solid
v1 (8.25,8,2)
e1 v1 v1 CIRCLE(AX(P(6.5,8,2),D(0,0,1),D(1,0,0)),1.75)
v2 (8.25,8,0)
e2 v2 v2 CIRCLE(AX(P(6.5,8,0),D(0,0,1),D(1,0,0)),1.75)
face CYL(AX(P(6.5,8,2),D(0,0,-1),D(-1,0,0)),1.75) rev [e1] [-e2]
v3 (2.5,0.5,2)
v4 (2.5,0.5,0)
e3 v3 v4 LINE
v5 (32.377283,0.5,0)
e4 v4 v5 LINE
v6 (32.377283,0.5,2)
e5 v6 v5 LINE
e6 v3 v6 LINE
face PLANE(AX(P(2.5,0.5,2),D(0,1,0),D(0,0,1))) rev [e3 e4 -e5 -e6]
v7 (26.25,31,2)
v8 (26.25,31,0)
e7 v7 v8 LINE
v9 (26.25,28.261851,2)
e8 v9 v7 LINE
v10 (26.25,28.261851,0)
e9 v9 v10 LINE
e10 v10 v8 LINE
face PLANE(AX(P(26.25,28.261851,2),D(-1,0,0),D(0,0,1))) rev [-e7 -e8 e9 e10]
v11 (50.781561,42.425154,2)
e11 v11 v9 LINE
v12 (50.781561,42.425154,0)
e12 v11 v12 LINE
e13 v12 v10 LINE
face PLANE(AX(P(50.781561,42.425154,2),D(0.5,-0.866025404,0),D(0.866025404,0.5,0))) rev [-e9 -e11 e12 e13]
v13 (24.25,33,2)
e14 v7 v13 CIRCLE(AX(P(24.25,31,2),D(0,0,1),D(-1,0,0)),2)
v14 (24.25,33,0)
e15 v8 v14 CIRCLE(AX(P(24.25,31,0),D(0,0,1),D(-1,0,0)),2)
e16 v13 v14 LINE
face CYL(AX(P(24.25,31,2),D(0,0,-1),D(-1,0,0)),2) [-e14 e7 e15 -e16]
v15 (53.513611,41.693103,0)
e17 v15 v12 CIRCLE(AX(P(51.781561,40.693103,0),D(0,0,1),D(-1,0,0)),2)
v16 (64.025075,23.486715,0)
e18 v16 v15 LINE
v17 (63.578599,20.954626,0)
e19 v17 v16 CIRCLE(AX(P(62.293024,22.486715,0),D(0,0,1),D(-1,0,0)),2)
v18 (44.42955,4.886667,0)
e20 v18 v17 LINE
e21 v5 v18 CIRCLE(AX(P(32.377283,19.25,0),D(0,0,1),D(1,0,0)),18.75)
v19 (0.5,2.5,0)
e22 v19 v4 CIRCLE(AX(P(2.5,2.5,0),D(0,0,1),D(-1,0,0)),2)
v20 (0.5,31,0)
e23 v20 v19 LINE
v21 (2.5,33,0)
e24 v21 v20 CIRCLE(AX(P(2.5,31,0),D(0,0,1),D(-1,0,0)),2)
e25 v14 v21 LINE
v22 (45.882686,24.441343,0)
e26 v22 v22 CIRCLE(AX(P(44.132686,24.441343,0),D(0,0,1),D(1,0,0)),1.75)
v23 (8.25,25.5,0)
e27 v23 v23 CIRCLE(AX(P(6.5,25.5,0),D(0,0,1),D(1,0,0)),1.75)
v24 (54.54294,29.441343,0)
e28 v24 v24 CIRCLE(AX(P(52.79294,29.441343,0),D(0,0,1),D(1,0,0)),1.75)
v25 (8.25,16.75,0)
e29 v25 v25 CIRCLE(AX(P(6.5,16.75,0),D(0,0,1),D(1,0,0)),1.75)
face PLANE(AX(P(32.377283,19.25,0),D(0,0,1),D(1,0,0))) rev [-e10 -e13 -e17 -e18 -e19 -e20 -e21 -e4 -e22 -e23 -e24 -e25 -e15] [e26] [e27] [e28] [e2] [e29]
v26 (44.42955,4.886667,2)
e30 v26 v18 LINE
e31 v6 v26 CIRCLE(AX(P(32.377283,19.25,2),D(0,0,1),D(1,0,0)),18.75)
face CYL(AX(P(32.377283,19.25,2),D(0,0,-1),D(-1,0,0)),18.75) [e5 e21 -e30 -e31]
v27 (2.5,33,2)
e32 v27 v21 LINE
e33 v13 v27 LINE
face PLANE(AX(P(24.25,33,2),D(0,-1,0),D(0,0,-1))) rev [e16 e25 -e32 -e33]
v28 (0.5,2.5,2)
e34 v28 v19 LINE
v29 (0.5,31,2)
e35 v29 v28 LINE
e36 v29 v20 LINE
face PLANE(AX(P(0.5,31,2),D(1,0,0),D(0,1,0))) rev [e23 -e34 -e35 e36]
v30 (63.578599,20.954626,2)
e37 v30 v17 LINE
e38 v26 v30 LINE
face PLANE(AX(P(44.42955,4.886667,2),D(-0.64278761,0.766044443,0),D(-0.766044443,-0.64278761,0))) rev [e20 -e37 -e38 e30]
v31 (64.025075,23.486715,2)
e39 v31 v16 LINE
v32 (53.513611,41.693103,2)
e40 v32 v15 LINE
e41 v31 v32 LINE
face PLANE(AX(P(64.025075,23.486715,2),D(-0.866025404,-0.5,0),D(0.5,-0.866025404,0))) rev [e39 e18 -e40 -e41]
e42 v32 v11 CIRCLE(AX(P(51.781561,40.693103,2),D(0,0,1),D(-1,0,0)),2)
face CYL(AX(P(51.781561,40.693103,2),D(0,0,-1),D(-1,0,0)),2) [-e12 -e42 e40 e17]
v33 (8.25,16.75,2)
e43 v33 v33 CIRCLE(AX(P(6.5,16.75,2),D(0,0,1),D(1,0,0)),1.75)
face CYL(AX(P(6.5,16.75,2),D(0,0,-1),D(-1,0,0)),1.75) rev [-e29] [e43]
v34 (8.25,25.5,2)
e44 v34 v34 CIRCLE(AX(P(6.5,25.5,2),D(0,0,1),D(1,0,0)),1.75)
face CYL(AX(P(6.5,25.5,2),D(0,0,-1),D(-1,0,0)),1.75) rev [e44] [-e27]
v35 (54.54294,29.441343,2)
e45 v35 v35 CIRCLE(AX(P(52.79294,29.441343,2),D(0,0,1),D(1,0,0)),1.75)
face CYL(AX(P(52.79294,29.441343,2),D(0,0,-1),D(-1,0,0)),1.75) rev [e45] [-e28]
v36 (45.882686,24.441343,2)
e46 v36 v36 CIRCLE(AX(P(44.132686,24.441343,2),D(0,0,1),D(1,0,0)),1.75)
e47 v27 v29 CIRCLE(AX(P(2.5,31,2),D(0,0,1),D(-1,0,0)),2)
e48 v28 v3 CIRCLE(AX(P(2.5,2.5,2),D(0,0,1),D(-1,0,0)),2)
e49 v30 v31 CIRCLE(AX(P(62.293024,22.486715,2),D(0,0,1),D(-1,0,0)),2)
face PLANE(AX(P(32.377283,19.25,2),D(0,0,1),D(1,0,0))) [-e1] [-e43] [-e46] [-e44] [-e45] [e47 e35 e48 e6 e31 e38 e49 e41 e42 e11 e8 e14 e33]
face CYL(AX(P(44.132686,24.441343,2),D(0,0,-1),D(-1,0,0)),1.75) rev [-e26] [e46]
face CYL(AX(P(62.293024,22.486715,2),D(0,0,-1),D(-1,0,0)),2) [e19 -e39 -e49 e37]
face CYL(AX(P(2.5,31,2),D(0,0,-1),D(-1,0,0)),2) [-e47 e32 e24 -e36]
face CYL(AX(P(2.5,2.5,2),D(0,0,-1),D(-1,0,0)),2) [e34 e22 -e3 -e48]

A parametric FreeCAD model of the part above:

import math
import FreeCAD as App
import Part
import Sketcher
from FreeCAD import Vector
Q = App.Units.Quantity

doc = App.newDocument("Part")
params = doc.addObject("Spreadsheet::Sheet", "Params")
for row, (alias, value) in enumerate([
    ("sketch1_radius", "2 mm"),
    ("sketch1_diameter", "3.5 mm"),
    ("sketch1_radius2", "18.75 mm"),
    ("sketch1_height", "28.5 mm"),
    ("sketch1_width", "21.75 mm"),
    ("pad1_length", "2 mm"),
], start=1):
    params.set(f"A{row}", alias)
    params.set(f"B{row}", "=" + value)
    params.setAlias(f"B{row}", alias)

body = doc.addObject("PartDesign::Body", "Body")

# Sketch on XY plane
sketch1 = body.newObject("Sketcher::SketchObject", "Sketch")
sketch1.AttachmentSupport = (doc.getObject("XY_Plane"), [""])
sketch1.MapMode = "FlatFace"
sketch1.addGeometry(Part.LineSegment(Vector(24.2, 33, 0), Vector(2.5, 33, 0)), False)
sketch1.addGeometry(Part.ArcOfCircle(Part.Circle(Vector(2.5, 31, 0), Vector(0, 0, 1), 2), math.radians(90), math.radians(180)), False)
sketch1.addGeometry(Part.LineSegment(Vector(0.5, 31, 0), Vector(0.5, 2.5, 0)), False)
sketch1.addGeometry(Part.ArcOfCircle(Part.Circle(Vector(2.5, 2.5, 0), Vector(0, 0, 1), 2), math.radians(-180), math.radians(-90)), False)
sketch1.addGeometry(Part.LineSegment(Vector(2.5, 0.5, 0), Vector(32.4, 0.5, 0)), False)
sketch1.addGeometry(Part.ArcOfCircle(Part.Circle(Vector(32.4, 19.2, 0), Vector(0, 0, 1), 18.7), math.radians(-90), math.radians(-50)), False)
sketch1.addGeometry(Part.LineSegment(Vector(44.4, 4.9, 0), Vector(63.6, 21, 0)), False)
sketch1.addGeometry(Part.ArcOfCircle(Part.Circle(Vector(62.3, 22.5, 0), Vector(0, 0, 1), 2), math.radians(-50), math.radians(30)), False)
sketch1.addGeometry(Part.LineSegment(Vector(64, 23.5, 0), Vector(53.5, 41.7, 0)), False)
sketch1.addGeometry(Part.ArcOfCircle(Part.Circle(Vector(51.8, 40.7, 0), Vector(0, 0, 1), 2), math.radians(30), math.radians(120)), False)
sketch1.addGeometry(Part.LineSegment(Vector(50.8, 42.4, 0), Vector(26.2, 28.3, 0)), False)
sketch1.addGeometry(Part.LineSegment(Vector(26.2, 28.3, 0), Vector(26.2, 31, 0)), False)
sketch1.addGeometry(Part.ArcOfCircle(Part.Circle(Vector(24.2, 31, 0), Vector(0, 0, 1), 2), math.radians(0), math.radians(90)), False)
sketch1.addGeometry(Part.Circle(Vector(6.5, 8, 0), Vector(0, 0, 1), 1.8), False)
sketch1.addGeometry(Part.Circle(Vector(6.5, 16.8, 0), Vector(0, 0, 1), 1.8), False)
sketch1.addGeometry(Part.Circle(Vector(6.5, 25.5, 0), Vector(0, 0, 1), 1.8), False)
sketch1.addGeometry(Part.Circle(Vector(44.1, 24.4, 0), Vector(0, 0, 1), 1.8), False)
sketch1.addGeometry(Part.Circle(Vector(52.8, 29.4, 0), Vector(0, 0, 1), 1.8), False)
sketch1.addConstraint(Sketcher.Constraint("Tangent", 0, 2, 1, 1))
sketch1.addConstraint(Sketcher.Constraint("Tangent", 1, 2, 2, 1))
sketch1.addConstraint(Sketcher.Constraint("Tangent", 2, 2, 3, 1))
sketch1.addConstraint(Sketcher.Constraint("Tangent", 3, 2, 4, 1))
sketch1.addConstraint(Sketcher.Constraint("Tangent", 4, 2, 5, 1))
sketch1.addConstraint(Sketcher.Constraint("Tangent", 5, 2, 6, 1))
sketch1.addConstraint(Sketcher.Constraint("Tangent", 6, 2, 7, 1))
sketch1.addConstraint(Sketcher.Constraint("Tangent", 7, 2, 8, 1))
sketch1.addConstraint(Sketcher.Constraint("Tangent", 8, 2, 9, 1))
sketch1.addConstraint(Sketcher.Constraint("Tangent", 9, 2, 10, 1))
sketch1.addConstraint(Sketcher.Constraint("Coincident", 10, 2, 11, 1))
sketch1.addConstraint(Sketcher.Constraint("Tangent", 11, 2, 12, 1))
sketch1.addConstraint(Sketcher.Constraint("Tangent", 12, 2, 0, 1))
sketch1.addConstraint(Sketcher.Constraint("Horizontal", 0))
sketch1.addConstraint(Sketcher.Constraint("Vertical", 2))
sketch1.addConstraint(Sketcher.Constraint("Horizontal", 4))
sketch1.addConstraint(Sketcher.Constraint("Vertical", 11))
sketch1.addConstraint(Sketcher.Constraint("Equal", 1, 3))
sketch1.addConstraint(Sketcher.Constraint("Equal", 3, 7))
sketch1.addConstraint(Sketcher.Constraint("Equal", 7, 9))
sketch1.addConstraint(Sketcher.Constraint("Equal", 9, 12))
sketch1.addConstraint(Sketcher.Constraint("Equal", 13, 14))
sketch1.addConstraint(Sketcher.Constraint("Equal", 14, 15))
sketch1.addConstraint(Sketcher.Constraint("Equal", 15, 16))
sketch1.addConstraint(Sketcher.Constraint("Equal", 16, 17))
sketch1.addConstraint(Sketcher.Constraint("Perpendicular", 8, 10))
sketch1.addConstraint(Sketcher.Constraint("Vertical", 13, 3, 14, 3))
sketch1.addConstraint(Sketcher.Constraint("Vertical", 14, 3, 15, 3))
sketch1.addConstraint(Sketcher.Constraint("Radius", 1, Q("2 mm")))
sketch1.addConstraint(Sketcher.Constraint("Diameter", 13, Q("3.5 mm")))
sketch1.addConstraint(Sketcher.Constraint("Angle", 6, Q("40 deg")))
sketch1.addConstraint(Sketcher.Constraint("Angle", 8, Q("120 deg")))
sketch1.addConstraint(Sketcher.Constraint("Radius", 5, Q("18.75 mm")))
sketch1.addConstraint(Sketcher.Constraint("DistanceY", 2, 2, 2, 1, Q("28.5 mm")))
sketch1.addConstraint(Sketcher.Constraint("DistanceY", -1, 1, 1, 3, Q("31 mm")))
sketch1.addConstraint(Sketcher.Constraint("DistanceY", -1, 1, 13, 3, Q("8 mm")))
sketch1.addConstraint(Sketcher.Constraint("DistanceX", 3, 3, 13, 3, Q("4 mm")))
sketch1.addConstraint(Sketcher.Constraint("DistanceY", 3, 3, 15, 3, Q("23 mm")))
sketch1.addConstraint(Sketcher.Constraint("DistanceY", 16, 3, 17, 3, Q("5 mm")))
sketch1.addConstraint(Sketcher.Constraint("DistanceX", 0, 2, 0, 1, Q("21.75 mm")))
sketch1.addConstraint(Sketcher.Constraint("DistanceX", -1, 1, 1, 3, Q("2.5 mm")))
sketch1.addConstraint(Sketcher.Constraint("DistanceY", 14, 3, 5, 3, Q("2.5 mm")))
sketch1.addConstraint(Sketcher.Constraint("DistanceY", 11, 1, 11, 2, Q("2.738149 mm")))
sketch1.addConstraint(Sketcher.Constraint("DistanceX", -1, 1, 6, 2, Q("63.578599 mm")))
sketch1.addConstraint(Sketcher.Constraint("DistanceX", 4, 1, 4, 2, Q("29.877283 mm")))
sketch1.addConstraint(Sketcher.Constraint("DistanceX", -1, 1, 17, 3, Q("52.79294 mm")))
sketch1.addConstraint(Sketcher.Constraint("DistanceY", 16, 3, 9, 3, Q("16.25176 mm")))
sketch1.addConstraint(Sketcher.Constraint("DistanceX", 16, 3, 7, 2, Q("19.892389 mm")))
sketch1.setExpression("Constraints[28]", "Params.sketch1_radius")
sketch1.setExpression("Constraints[29]", "Params.sketch1_diameter")
sketch1.setExpression("Constraints[32]", "Params.sketch1_radius2")
sketch1.setExpression("Constraints[33]", "Params.sketch1_height")
sketch1.setExpression("Constraints[39]", "Params.sketch1_width")
pad1 = body.newObject("PartDesign::Pad", "Pad")
pad1.Profile = sketch1
pad1.setExpression("Length", "Params.pad1_length")

doc.recompute()
